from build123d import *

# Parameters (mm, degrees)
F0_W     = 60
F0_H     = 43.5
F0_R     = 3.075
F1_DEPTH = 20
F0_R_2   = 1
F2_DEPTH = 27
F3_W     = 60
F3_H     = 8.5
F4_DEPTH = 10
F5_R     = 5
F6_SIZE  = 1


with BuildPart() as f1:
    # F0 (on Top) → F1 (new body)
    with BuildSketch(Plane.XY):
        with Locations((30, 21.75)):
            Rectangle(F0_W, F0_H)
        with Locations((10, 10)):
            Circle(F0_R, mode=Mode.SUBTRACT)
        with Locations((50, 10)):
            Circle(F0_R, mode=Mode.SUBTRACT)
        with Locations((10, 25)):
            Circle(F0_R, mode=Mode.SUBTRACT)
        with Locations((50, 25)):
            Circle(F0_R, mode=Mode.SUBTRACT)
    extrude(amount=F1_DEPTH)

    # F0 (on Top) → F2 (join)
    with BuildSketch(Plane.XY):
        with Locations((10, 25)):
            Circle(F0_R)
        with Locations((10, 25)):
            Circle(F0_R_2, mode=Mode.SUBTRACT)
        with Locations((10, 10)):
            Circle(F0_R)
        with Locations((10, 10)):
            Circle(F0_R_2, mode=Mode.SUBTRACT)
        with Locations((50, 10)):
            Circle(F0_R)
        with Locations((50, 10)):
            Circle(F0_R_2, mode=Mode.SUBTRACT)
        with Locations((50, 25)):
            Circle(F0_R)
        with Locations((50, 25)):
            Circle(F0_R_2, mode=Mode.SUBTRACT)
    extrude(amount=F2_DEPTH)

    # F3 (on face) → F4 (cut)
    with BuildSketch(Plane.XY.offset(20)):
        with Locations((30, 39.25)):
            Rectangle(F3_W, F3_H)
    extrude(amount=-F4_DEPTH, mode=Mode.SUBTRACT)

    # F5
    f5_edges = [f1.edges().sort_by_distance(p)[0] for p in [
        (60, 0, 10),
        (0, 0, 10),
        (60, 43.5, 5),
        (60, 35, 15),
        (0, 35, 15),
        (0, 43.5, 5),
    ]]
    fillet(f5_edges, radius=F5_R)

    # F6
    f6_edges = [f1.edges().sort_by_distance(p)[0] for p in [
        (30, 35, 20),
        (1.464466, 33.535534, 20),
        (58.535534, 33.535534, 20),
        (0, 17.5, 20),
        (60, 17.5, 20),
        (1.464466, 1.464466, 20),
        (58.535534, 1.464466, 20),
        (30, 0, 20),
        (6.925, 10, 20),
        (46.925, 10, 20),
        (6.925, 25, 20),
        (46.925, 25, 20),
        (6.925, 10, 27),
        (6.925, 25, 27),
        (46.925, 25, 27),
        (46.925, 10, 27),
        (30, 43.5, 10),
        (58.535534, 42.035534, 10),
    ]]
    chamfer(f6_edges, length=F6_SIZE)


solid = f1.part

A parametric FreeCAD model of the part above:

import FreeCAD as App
import Part
import Sketcher

V = App.Vector


def edges_at(feature, points):
    """Names of the edges that pass closest to the given points."""
    edges = feature.Shape.Edges
    near = lambda p: min(range(len(edges)), key=lambda i: edges[i].distToShape(Part.Vertex(*p))[0])
    return sorted({f"Edge{near(p) + 1}" for p in points})


def add_polygon(sketch, points):
    """Adds a closed chain of lines whose ends are joined by coincident constraints."""
    first, n = sketch.GeometryCount, len(points)
    for a, b in zip(points, points[1:] + points[:1]):
        sketch.addGeometry(Part.LineSegment(App.Vector(*a, 0), App.Vector(*b, 0)), False)
    for i in range(n):
        sketch.addConstraint(Sketcher.Constraint("Coincident", first + i, 2, first + (i + 1) % n, 1))

doc = App.newDocument("Part")
body = doc.addObject("PartDesign::Body", "Body")

sketch1 = doc.addObject("Sketcher::SketchObject", "Sketch")
body.addObject(sketch1)
sketch1.AttachmentSupport = (doc.XY_Plane, [""])
sketch1.MapMode = "FlatFace"
add_polygon(sketch1, [(0, 43.5), (0, 0), (60, 0), (60, 43.5)])
sketch1.addGeometry(Part.Circle(V(10, 10, 0), V(0, 0, 1), 3.1), False)
sketch1.addGeometry(Part.Circle(V(50, 10, 0), V(0, 0, 1), 3.1), False)
sketch1.addGeometry(Part.Circle(V(10, 25, 0), V(0, 0, 1), 3.1), False)
sketch1.addGeometry(Part.Circle(V(50, 25, 0), V(0, 0, 1), 3.1), False)
sketch1.addConstraint([
    Sketcher.Constraint("Vertical", 0),
    Sketcher.Constraint("Horizontal", 1),
    Sketcher.Constraint("Vertical", 2),
    Sketcher.Constraint("Horizontal", 3),
    Sketcher.Constraint("Coincident", 0, 2, -1, 1),
    Sketcher.Constraint("Equal", 4, 5),
    Sketcher.Constraint("Equal", 5, 6),
    Sketcher.Constraint("Equal", 6, 7),
    Sketcher.Constraint("Horizontal", 4, 3, 5, 3),
    Sketcher.Constraint("Horizontal", 6, 3, 7, 3),
    Sketcher.Constraint("Vertical", 4, 3, 6, 3),
    Sketcher.Constraint("Vertical", 5, 3, 7, 3),
    Sketcher.Constraint("Diameter", 4, 6.15),
    Sketcher.Constraint("DistanceX", 1, 1, 1, 2, 60.0),
    Sketcher.Constraint("DistanceY", 0, 2, 0, 1, 43.5),
    Sketcher.Constraint("DistanceX", -1, 1, 4, 3, 10.0),
    Sketcher.Constraint("DistanceY", -1, 1, 4, 3, 10.0),
    Sketcher.Constraint("DistanceX", -1, 1, 5, 3, 50.0),
    Sketcher.Constraint("DistanceY", -1, 1, 6, 3, 25.0),
])
pad1 = doc.addObject("PartDesign::Pad", "Pad")
body.addObject(pad1)
pad1.Profile = sketch1
pad1.Length = 20

sketch2 = doc.addObject("Sketcher::SketchObject", "Sketch001")
body.addObject(sketch2)
sketch2.AttachmentSupport = (doc.XY_Plane, [""])
sketch2.MapMode = "FlatFace"
sketch2.addGeometry([
    Part.Circle(V(10, 25, 0), V(0, 0, 1), 3.1),
    Part.Circle(V(10, 25, 0), V(0, 0, 1), 1),
    Part.Circle(V(10, 10, 0), V(0, 0, 1), 3.1),
    Part.Circle(V(10, 10, 0), V(0, 0, 1), 1),
    Part.Circle(V(50, 10, 0), V(0, 0, 1), 3.1),
    Part.Circle(V(50, 10, 0), V(0, 0, 1), 1),
    Part.Circle(V(50, 25, 0), V(0, 0, 1), 3.1),
    Part.Circle(V(50, 25, 0), V(0, 0, 1), 1),
], False)
sketch2.addConstraint([
    Sketcher.Constraint("Coincident", 1, 3, 0, 3),
    Sketcher.Constraint("Coincident", 3, 3, 2, 3),
    Sketcher.Constraint("Coincident", 5, 3, 4, 3),
    Sketcher.Constraint("Coincident", 7, 3, 6, 3),
    Sketcher.Constraint("Equal", 0, 2),
    Sketcher.Constraint("Equal", 1, 3),
    Sketcher.Constraint("Equal", 2, 4),
    Sketcher.Constraint("Equal", 3, 5),
    Sketcher.Constraint("Equal", 4, 6),
    Sketcher.Constraint("Equal", 5, 7),
    Sketcher.Constraint("Horizontal", 3, 3, 4, 3),
    Sketcher.Constraint("Horizontal", 1, 3, 6, 3),
    Sketcher.Constraint("Vertical", 1, 3, 2, 3),
    Sketcher.Constraint("Vertical", 5, 3, 6, 3),
    Sketcher.Constraint("Diameter", 1, 2.0),
    Sketcher.Constraint("Diameter", 0, 6.15),
    Sketcher.Constraint("DistanceX", -1, 1, 0, 3, 10.0),
    Sketcher.Constraint("DistanceY", -1, 1, 0, 3, 25.0),
    Sketcher.Constraint("DistanceY", -1, 1, 2, 3, 10.0),
    Sketcher.Constraint("DistanceX", -1, 1, 4, 3, 50.0),
])
pad2 = doc.addObject("PartDesign::Pad", "Pad001")
body.addObject(pad2)
pad2.Profile = sketch2
pad2.Length = 27

sketch3 = doc.addObject("Sketcher::SketchObject", "Sketch002")
body.addObject(sketch3)
sketch3.AttachmentSupport = (doc.XY_Plane, [""])
sketch3.MapMode = "FlatFace"
sketch3.AttachmentOffset = App.Placement(V(0, 0, 20), App.Rotation())
add_polygon(sketch3, [(0, 44), (0, 35), (60, 35), (60, 44)])
sketch3.addConstraint([
    Sketcher.Constraint("Vertical", 0),
    Sketcher.Constraint("Horizontal", 1),
    Sketcher.Constraint("Vertical", 2),
    Sketcher.Constraint("Horizontal", 3),
    Sketcher.Constraint("PointOnObject", 0, 2, -2),
    Sketcher.Constraint("DistanceX", 1, 1, 1, 2, 60.0),
    Sketcher.Constraint("DistanceY", 0, 2, 0, 1, 8.5),
    Sketcher.Constraint("DistanceY", -1, 1, 0, 2, 35.0),
])
pocket1 = doc.addObject("PartDesign::Pocket", "Pocket")
body.addObject(pocket1)
pocket1.Profile = sketch3
pocket1.Length = 10
doc.recompute()

fillet = doc.addObject("PartDesign::Fillet", "Fillet")
body.addObject(fillet)
fillet.Base = (pocket1, edges_at(pocket1, [
    (60, 0, 10),
    (0, 0, 10),
    (60, 43.5, 5),
    (60, 35, 15),
    (0, 35, 15),
    (0, 43.5, 5),
]))
fillet.Radius = 5
doc.recompute()

chamfer = doc.addObject("PartDesign::Chamfer", "Chamfer")
body.addObject(chamfer)
chamfer.Base = (fillet, edges_at(fillet, [
    (30, 35, 20),
    (1.464, 33.536, 20),
    (58.536, 33.536, 20),
    (0, 17.5, 20),
    (60, 17.5, 20),
    (1.464, 1.464, 20),
    (58.536, 1.464, 20),
    (30, 0, 20),
    (6.925, 10, 20),
    (46.925, 10, 20),
    (6.925, 25, 20),
    (46.925, 25, 20),
    (6.925, 10, 27),
    (6.925, 25, 27),
    (46.925, 25, 27),
    (46.925, 10, 27),
    (30, 43.5, 10),
    (58.536, 42.036, 10),
]))
chamfer.Size = 1

doc.recompute()
